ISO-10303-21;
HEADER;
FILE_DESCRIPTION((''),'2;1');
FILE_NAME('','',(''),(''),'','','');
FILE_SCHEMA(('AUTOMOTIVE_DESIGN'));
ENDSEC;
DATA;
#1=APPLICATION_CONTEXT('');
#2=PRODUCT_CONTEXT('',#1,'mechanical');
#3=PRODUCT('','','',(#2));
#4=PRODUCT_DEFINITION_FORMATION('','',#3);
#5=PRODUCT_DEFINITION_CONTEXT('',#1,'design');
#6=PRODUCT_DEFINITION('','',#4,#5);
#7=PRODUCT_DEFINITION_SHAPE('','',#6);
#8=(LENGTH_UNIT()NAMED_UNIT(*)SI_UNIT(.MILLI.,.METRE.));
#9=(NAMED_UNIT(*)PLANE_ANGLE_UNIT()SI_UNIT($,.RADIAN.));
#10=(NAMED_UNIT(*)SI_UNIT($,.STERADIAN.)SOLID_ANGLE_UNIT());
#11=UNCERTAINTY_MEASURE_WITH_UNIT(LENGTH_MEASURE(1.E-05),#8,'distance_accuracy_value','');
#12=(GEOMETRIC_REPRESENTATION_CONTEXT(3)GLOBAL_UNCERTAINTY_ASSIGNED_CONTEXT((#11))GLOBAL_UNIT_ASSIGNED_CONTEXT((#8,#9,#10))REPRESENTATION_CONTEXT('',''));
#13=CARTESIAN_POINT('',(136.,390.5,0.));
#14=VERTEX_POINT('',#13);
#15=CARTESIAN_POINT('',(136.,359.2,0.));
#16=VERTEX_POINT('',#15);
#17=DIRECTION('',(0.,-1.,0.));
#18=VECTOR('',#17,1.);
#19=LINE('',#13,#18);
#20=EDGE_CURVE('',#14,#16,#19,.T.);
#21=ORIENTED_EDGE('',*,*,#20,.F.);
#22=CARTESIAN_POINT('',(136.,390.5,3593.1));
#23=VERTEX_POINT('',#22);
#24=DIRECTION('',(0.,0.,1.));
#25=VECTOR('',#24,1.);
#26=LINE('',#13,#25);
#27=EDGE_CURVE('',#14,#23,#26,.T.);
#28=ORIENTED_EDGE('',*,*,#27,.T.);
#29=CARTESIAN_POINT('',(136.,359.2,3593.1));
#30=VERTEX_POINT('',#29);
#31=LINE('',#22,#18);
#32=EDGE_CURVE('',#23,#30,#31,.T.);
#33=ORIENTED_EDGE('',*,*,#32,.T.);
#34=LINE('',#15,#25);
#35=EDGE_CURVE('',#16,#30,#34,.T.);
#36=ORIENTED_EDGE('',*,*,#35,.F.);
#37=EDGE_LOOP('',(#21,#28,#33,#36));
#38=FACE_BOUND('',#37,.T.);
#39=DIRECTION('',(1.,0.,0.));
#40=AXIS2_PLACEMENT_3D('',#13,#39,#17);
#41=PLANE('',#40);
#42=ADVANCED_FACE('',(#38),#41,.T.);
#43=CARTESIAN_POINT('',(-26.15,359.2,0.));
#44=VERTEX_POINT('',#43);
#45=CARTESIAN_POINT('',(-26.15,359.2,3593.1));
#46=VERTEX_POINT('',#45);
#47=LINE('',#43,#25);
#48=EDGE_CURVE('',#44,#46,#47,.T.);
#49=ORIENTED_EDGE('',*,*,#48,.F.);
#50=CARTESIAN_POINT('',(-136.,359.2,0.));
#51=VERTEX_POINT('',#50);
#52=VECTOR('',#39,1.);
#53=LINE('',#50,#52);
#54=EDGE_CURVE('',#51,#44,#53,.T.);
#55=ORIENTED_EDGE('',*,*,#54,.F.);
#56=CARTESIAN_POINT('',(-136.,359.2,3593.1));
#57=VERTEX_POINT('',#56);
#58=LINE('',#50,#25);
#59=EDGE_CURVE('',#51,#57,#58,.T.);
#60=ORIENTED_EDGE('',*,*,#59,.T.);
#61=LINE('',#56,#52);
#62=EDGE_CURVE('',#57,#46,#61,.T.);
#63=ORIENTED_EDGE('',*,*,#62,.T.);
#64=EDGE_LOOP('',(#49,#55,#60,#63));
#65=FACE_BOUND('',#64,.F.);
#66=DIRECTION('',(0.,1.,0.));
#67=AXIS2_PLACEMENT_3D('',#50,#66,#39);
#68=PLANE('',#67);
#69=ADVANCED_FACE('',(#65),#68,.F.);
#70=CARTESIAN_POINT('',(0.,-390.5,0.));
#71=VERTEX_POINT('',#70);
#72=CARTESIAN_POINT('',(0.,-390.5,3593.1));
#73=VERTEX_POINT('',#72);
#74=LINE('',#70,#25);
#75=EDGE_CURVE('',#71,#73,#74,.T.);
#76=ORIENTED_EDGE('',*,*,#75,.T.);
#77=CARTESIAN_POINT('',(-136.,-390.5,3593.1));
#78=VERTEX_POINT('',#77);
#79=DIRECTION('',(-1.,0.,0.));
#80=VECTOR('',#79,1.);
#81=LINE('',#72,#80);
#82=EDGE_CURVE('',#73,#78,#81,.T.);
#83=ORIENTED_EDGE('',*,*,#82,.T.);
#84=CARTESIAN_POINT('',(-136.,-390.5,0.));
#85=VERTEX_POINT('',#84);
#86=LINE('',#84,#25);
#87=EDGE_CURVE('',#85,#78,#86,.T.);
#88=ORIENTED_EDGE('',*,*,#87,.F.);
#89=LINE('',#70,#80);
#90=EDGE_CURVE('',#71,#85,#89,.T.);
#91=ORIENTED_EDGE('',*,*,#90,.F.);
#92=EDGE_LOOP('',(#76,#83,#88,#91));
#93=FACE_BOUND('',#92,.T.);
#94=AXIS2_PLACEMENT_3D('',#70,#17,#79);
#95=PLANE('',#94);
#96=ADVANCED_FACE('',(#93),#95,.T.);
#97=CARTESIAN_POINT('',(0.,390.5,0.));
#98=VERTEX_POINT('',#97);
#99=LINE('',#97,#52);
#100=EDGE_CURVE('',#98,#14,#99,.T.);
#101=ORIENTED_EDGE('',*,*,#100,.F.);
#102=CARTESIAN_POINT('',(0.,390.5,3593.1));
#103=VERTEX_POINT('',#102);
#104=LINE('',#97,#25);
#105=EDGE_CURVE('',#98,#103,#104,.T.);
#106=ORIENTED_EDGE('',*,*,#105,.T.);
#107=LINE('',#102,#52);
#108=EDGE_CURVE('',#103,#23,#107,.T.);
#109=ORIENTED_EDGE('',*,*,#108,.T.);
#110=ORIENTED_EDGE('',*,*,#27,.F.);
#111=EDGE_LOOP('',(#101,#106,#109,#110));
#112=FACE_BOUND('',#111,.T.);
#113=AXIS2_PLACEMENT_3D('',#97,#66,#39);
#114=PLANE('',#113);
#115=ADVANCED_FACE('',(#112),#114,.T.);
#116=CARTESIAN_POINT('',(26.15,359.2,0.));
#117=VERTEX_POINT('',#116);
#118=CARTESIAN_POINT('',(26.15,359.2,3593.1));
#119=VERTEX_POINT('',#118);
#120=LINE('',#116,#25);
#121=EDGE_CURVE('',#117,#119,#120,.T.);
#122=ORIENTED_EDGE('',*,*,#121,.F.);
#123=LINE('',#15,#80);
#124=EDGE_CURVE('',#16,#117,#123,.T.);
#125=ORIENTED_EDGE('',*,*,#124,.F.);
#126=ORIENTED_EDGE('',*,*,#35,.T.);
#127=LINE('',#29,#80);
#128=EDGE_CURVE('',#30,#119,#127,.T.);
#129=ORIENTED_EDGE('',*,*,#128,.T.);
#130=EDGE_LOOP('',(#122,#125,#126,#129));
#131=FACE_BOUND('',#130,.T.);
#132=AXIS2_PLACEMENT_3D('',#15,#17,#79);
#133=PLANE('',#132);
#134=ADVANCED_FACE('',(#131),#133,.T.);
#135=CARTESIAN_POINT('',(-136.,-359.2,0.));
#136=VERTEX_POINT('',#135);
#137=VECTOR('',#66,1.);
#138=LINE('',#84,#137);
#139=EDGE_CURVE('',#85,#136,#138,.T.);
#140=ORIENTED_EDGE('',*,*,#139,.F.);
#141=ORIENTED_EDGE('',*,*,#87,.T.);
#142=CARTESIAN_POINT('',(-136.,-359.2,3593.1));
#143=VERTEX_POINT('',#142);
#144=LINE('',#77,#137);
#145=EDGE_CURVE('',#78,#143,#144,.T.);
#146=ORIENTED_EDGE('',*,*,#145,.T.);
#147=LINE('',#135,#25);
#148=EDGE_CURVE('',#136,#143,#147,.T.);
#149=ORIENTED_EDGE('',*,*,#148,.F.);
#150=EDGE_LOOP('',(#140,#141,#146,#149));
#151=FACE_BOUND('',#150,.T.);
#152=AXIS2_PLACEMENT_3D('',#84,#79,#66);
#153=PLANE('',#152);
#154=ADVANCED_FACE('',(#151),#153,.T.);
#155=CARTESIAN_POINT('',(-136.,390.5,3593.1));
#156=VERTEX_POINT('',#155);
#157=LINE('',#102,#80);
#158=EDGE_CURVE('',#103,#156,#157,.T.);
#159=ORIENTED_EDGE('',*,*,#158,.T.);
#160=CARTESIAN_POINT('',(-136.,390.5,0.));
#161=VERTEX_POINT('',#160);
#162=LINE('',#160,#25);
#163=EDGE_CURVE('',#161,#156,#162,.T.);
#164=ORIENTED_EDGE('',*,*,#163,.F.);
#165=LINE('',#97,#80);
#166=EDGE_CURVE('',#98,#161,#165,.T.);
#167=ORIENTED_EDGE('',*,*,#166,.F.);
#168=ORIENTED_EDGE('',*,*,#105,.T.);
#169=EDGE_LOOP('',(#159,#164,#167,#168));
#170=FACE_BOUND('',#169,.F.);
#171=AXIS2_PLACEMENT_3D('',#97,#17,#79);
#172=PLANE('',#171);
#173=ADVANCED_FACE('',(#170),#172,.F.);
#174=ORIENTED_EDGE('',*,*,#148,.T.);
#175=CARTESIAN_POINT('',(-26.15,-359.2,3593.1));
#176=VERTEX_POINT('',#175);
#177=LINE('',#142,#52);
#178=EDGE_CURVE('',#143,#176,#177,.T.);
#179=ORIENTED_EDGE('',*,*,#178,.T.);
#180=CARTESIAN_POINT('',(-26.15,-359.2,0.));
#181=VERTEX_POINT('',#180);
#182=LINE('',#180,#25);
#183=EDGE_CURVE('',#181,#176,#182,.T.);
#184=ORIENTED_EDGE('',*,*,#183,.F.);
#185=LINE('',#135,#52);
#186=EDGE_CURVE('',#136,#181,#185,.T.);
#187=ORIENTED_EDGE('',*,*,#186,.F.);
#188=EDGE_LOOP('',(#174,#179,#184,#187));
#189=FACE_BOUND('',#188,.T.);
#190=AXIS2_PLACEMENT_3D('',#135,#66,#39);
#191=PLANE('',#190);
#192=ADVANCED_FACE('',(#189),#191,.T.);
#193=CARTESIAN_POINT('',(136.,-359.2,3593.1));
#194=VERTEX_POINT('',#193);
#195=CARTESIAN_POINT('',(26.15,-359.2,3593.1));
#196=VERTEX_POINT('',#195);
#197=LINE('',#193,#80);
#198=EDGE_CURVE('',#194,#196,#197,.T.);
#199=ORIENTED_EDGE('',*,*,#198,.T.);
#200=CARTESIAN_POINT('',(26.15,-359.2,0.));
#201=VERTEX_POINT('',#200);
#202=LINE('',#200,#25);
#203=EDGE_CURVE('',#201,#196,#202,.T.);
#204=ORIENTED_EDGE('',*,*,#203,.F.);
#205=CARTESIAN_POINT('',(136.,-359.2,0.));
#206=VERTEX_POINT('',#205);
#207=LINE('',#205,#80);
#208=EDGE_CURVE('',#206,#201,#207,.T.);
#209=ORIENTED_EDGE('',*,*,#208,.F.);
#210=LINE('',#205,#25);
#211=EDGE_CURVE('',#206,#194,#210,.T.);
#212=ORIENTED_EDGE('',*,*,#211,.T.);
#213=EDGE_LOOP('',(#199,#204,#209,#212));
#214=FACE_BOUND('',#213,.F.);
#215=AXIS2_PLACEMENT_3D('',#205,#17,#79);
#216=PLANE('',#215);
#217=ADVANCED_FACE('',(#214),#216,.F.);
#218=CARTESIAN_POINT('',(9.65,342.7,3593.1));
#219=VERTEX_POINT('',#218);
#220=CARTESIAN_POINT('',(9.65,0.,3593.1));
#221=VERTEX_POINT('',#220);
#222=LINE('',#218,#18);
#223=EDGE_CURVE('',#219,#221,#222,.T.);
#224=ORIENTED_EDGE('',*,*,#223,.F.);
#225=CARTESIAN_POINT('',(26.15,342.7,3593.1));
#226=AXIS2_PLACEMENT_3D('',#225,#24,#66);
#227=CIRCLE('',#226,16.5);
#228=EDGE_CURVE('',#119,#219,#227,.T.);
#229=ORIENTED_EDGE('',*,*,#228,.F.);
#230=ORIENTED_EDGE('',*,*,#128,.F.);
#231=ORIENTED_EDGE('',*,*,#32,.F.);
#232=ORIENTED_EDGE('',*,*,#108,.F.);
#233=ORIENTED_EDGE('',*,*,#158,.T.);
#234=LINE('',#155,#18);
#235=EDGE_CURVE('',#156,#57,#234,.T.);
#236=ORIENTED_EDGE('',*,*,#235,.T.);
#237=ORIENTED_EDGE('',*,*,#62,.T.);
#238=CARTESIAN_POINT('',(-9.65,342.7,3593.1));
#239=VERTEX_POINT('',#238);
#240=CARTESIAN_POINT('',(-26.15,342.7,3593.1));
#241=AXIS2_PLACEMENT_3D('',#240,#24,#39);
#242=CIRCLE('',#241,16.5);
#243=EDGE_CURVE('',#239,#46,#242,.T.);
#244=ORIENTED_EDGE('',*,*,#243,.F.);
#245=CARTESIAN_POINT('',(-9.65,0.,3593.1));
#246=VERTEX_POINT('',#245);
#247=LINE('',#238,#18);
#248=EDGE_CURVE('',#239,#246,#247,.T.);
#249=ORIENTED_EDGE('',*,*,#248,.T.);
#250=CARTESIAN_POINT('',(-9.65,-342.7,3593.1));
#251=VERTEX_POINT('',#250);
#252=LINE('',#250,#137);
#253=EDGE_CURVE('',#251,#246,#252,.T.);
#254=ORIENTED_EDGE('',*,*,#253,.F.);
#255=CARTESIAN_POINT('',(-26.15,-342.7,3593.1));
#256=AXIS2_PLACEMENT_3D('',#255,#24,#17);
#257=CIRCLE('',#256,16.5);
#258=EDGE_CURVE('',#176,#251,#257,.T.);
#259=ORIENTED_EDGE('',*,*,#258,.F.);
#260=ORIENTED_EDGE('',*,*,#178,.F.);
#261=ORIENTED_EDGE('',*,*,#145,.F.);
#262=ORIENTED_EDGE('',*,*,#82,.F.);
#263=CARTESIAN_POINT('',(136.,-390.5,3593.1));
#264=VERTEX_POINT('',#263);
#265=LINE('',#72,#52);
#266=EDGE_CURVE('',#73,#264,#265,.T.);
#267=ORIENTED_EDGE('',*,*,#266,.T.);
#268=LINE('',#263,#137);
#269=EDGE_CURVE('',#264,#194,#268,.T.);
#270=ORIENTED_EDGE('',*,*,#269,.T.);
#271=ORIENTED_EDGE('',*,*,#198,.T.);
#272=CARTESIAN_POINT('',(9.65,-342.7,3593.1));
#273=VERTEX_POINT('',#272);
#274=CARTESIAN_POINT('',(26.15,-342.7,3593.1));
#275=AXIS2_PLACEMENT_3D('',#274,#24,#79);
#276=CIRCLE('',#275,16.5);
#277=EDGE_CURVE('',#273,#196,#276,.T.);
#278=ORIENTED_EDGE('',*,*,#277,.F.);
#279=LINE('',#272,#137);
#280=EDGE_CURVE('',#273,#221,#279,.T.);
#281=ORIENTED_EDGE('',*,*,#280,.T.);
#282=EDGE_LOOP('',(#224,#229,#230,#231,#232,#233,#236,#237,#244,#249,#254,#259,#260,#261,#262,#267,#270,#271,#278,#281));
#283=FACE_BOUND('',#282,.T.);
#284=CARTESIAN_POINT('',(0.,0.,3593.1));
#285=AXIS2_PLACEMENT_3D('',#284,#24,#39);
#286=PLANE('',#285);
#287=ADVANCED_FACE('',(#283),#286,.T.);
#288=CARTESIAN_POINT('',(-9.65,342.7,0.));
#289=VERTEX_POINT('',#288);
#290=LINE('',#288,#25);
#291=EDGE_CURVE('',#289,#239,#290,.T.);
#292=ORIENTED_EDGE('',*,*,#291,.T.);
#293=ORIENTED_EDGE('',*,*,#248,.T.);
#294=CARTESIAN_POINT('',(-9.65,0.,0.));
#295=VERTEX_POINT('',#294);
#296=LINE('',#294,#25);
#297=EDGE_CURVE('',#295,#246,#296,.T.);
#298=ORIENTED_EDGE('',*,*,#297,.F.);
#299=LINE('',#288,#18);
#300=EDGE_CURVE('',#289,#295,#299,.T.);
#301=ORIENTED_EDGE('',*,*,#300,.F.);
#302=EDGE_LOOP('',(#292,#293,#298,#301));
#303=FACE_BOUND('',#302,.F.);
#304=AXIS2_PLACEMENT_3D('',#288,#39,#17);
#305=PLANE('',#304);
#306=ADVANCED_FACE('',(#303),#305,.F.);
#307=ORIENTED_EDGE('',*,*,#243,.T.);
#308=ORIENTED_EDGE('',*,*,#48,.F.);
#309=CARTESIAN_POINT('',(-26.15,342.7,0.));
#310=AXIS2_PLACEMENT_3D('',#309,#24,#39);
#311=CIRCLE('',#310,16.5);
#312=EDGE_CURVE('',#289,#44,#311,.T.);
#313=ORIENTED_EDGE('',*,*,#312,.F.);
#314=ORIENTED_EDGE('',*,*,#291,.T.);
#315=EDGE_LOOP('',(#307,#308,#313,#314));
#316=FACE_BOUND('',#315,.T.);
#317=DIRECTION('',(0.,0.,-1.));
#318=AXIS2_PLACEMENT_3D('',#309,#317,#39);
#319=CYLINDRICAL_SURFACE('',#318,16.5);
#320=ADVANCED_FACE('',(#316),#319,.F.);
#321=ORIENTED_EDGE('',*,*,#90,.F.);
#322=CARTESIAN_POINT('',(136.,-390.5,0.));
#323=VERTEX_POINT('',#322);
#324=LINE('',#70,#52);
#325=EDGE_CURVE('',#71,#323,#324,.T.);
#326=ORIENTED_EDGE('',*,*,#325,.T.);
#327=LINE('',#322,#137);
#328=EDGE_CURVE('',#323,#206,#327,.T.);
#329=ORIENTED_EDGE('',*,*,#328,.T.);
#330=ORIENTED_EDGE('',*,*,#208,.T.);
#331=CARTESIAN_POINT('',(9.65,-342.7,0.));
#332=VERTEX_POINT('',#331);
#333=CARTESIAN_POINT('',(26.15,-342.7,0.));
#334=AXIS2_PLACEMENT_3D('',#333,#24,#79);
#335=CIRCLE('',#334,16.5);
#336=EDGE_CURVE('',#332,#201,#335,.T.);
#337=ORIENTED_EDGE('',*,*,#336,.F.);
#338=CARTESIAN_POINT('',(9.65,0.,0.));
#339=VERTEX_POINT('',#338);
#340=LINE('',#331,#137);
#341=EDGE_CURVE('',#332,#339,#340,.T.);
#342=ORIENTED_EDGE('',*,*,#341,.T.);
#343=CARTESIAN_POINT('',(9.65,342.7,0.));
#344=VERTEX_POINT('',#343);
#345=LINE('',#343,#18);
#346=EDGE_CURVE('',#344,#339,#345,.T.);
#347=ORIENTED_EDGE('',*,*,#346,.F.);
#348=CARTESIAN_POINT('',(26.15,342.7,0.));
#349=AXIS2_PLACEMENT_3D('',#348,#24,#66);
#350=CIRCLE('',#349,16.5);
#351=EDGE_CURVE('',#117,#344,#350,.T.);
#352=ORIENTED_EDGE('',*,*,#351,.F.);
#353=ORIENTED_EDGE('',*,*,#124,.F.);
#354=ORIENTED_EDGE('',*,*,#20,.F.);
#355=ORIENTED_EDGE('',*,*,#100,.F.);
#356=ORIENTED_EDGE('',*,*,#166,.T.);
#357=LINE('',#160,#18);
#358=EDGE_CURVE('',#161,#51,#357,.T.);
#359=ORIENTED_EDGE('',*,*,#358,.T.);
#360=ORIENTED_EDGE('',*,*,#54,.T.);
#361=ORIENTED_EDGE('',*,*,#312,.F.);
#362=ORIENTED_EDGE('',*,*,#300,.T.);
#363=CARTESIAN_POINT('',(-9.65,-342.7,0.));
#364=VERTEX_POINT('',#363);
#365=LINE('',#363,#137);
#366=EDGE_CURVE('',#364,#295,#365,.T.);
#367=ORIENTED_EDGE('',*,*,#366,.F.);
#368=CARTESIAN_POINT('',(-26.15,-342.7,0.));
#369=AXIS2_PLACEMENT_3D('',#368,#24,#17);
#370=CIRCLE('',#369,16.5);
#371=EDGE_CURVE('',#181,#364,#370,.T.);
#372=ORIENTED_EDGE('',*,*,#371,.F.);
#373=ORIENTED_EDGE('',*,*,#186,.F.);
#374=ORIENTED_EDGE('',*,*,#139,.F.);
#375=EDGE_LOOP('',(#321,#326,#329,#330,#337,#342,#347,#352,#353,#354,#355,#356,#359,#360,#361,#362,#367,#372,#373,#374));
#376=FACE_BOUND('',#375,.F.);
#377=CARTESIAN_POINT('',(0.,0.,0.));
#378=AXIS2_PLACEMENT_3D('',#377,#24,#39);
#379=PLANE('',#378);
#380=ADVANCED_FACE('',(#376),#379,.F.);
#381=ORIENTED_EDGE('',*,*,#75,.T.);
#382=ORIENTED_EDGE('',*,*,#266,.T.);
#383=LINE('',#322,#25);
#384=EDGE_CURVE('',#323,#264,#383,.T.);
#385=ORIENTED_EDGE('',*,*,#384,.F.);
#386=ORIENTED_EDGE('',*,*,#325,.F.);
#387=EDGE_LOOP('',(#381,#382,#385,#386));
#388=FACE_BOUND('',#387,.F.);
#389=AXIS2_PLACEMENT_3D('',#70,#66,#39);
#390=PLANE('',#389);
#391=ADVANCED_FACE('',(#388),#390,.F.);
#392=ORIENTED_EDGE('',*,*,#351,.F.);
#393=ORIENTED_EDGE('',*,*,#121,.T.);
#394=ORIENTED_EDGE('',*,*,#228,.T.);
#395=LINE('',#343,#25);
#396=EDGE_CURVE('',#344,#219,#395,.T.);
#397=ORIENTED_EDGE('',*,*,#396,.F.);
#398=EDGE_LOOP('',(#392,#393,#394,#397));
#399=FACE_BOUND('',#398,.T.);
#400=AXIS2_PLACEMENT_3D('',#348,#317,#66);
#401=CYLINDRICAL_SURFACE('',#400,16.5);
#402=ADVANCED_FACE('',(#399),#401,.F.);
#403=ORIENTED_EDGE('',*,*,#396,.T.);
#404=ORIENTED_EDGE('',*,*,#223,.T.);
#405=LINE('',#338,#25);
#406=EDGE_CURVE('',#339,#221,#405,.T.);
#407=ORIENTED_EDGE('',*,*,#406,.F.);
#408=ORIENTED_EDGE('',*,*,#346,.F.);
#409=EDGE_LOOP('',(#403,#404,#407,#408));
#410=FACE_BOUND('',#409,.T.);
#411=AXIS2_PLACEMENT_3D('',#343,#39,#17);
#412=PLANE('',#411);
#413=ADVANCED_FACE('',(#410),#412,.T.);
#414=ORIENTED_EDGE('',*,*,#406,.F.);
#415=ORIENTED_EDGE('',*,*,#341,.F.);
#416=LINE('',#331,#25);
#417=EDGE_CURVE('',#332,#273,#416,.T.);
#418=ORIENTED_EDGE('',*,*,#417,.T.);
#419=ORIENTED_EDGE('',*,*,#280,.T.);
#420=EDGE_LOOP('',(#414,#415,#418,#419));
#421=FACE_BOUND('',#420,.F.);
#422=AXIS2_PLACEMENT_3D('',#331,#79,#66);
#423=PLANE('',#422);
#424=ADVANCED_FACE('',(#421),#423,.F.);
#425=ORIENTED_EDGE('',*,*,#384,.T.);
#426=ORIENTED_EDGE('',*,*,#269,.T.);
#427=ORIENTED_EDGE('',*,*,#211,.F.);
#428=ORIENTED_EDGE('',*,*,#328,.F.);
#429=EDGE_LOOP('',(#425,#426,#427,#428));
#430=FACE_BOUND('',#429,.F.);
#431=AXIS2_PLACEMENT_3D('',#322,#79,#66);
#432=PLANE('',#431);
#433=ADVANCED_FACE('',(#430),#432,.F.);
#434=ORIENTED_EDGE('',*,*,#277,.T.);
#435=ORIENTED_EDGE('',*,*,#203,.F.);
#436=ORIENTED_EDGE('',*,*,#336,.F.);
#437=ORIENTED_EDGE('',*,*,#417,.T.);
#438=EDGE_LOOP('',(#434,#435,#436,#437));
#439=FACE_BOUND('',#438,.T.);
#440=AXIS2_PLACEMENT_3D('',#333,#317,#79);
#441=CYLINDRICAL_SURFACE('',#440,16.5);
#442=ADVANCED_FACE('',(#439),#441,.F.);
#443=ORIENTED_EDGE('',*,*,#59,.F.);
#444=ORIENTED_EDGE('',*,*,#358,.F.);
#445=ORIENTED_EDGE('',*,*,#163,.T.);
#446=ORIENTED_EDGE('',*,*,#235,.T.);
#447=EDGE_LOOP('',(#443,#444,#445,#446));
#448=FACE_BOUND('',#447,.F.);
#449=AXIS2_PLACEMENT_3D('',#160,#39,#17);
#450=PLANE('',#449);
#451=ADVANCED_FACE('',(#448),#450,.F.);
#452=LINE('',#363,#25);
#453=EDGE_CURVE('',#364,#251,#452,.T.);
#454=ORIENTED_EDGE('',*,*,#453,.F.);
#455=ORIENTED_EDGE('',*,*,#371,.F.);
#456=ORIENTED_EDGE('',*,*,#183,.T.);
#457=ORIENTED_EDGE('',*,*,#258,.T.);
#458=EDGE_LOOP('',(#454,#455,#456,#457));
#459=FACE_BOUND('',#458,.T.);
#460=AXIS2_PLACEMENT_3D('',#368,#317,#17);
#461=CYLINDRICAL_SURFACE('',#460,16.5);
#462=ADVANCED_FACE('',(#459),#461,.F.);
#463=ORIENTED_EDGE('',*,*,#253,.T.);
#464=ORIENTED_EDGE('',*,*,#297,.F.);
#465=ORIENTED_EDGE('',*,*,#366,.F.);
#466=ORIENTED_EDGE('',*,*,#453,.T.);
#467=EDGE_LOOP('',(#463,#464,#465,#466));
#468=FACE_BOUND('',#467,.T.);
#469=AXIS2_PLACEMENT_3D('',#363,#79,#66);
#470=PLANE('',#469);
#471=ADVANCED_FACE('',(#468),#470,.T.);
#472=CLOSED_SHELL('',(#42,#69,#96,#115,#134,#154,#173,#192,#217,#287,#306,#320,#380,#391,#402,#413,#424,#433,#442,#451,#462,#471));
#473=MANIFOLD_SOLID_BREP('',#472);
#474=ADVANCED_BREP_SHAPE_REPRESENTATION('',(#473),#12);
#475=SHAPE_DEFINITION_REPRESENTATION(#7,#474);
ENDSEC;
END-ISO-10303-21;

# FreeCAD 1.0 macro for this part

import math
import FreeCAD as App
import Part
import Sketcher

V = App.Vector
Q = App.Units.Quantity

doc = App.newDocument("Part")
body = doc.addObject("PartDesign::Body", "Body")

sketch1 = body.newObject("Sketcher::SketchObject", "Sketch")
sketch1.AttachmentSupport = (doc.getObject("XY_Plane"), [""])
sketch1.MapMode = "FlatFace"
sketch1.addGeometry(Part.LineSegment(V(-136, -359.2, 0), V(-136, -390.5, 0)), False)
sketch1.addGeometry(Part.LineSegment(V(-136, -390.5, 0), V(136, -390.5, 0)), False)
sketch1.addGeometry(Part.LineSegment(V(136, -390.5, 0), V(136, -359.2, 0)), False)
sketch1.addGeometry(Part.LineSegment(V(136, -359.2, 0), V(26.15, -359.2, 0)), False)
sketch1.addGeometry(Part.ArcOfCircle(Part.Circle(V(26.15, -342.7, 0), V(0, 0, 1), 16.5), math.radians(180), math.radians(270)), False)
sketch1.addGeometry(Part.LineSegment(V(9.65, -342.7, 0), V(9.65, 342.7, 0)), False)
sketch1.addGeometry(Part.ArcOfCircle(Part.Circle(V(26.15, 342.7, 0), V(0, 0, 1), 16.5), math.radians(90), math.radians(180)), False)
sketch1.addGeometry(Part.LineSegment(V(26.15, 359.2, 0), V(136, 359.2, 0)), False)
sketch1.addGeometry(Part.LineSegment(V(136, 359.2, 0), V(136, 390.5, 0)), False)
sketch1.addGeometry(Part.LineSegment(V(136, 390.5, 0), V(-136, 390.5, 0)), False)
sketch1.addGeometry(Part.LineSegment(V(-136, 390.5, 0), V(-136, 359.2, 0)), False)
sketch1.addGeometry(Part.LineSegment(V(-136, 359.2, 0), V(-26.15, 359.2, 0)), False)
sketch1.addGeometry(Part.ArcOfCircle(Part.Circle(V(-26.15, 342.7, 0), V(0, 0, 1), 16.5), math.radians(0), math.radians(90)), False)
sketch1.addGeometry(Part.LineSegment(V(-9.65, 342.7, 0), V(-9.65, -342.7, 0)), False)
sketch1.addGeometry(Part.ArcOfCircle(Part.Circle(V(-26.15, -342.7, 0), V(0, 0, 1), 16.5), math.radians(-90), math.radians(0)), False)
sketch1.addGeometry(Part.LineSegment(V(-26.15, -359.2, 0), V(-136, -359.2, 0)), False)
sketch1.addConstraint(Sketcher.Constraint("Coincident", 0, 2, 1, 1))
sketch1.addConstraint(Sketcher.Constraint("Coincident", 1, 2, 2, 1))
sketch1.addConstraint(Sketcher.Constraint("Coincident", 2, 2, 3, 1))
sketch1.addConstraint(Sketcher.Constraint("Tangent", 3, 2, 4, 2))
sketch1.addConstraint(Sketcher.Constraint("Tangent", 4, 1, 5, 1))
sketch1.addConstraint(Sketcher.Constraint("Tangent", 5, 2, 6, 2))
sketch1.addConstraint(Sketcher.Constraint("Tangent", 6, 1, 7, 1))
sketch1.addConstraint(Sketcher.Constraint("Coincident", 7, 2, 8, 1))
sketch1.addConstraint(Sketcher.Constraint("Coincident", 8, 2, 9, 1))
sketch1.addConstraint(Sketcher.Constraint("Coincident", 9, 2, 10, 1))
sketch1.addConstraint(Sketcher.Constraint("Coincident", 10, 2, 11, 1))
sketch1.addConstraint(Sketcher.Constraint("Tangent", 11, 2, 12, 2))
sketch1.addConstraint(Sketcher.Constraint("Tangent", 12, 1, 13, 1))
sketch1.addConstraint(Sketcher.Constraint("Tangent", 13, 2, 14, 2))
sketch1.addConstraint(Sketcher.Constraint("Tangent", 14, 1, 15, 1))
sketch1.addConstraint(Sketcher.Constraint("Coincident", 15, 2, 0, 1))
sketch1.addConstraint(Sketcher.Constraint("Vertical", 0))
sketch1.addConstraint(Sketcher.Constraint("Horizontal", 1))
sketch1.addConstraint(Sketcher.Constraint("Vertical", 2))
sketch1.addConstraint(Sketcher.Constraint("Horizontal", 3))
sketch1.addConstraint(Sketcher.Constraint("Vertical", 5))
sketch1.addConstraint(Sketcher.Constraint("Horizontal", 7))
sketch1.addConstraint(Sketcher.Constraint("Vertical", 8))
sketch1.addConstraint(Sketcher.Constraint("Horizontal", 9))
sketch1.addConstraint(Sketcher.Constraint("Vertical", 10))
sketch1.addConstraint(Sketcher.Constraint("Horizontal", 11))
sketch1.addConstraint(Sketcher.Constraint("Vertical", 13))
sketch1.addConstraint(Sketcher.Constraint("Horizontal", 15))
sketch1.addConstraint(Sketcher.Constraint("Equal", 4, 6))
sketch1.addConstraint(Sketcher.Constraint("Equal", 6, 12))
sketch1.addConstraint(Sketcher.Constraint("Equal", 12, 14))
sketch1.addConstraint(Sketcher.Constraint("Symmetric", 4, 3, 12, 3, -1, 1))
sketch1.addConstraint(Sketcher.Constraint("Symmetric", 0, 2, 8, 2, -1, 1))
sketch1.addConstraint(Sketcher.Constraint("Symmetric", 7, 2, 10, 2, -2))
sketch1.addConstraint(Sketcher.Constraint("Symmetric", 2, 2, 15, 2, -2))
sketch1.addConstraint(Sketcher.Constraint("Radius", 4, Q("16.5 mm")))
sketch1.addConstraint(Sketcher.Constraint("DistanceY", 0, 2, 0, 1, Q("31.3 mm")))
sketch1.addConstraint(Sketcher.Constraint("DistanceX", 0, 2, -1, 1, Q("136 mm")))
sketch1.addConstraint(Sketcher.Constraint("DistanceY", 0, 2, -1, 1, Q("390.5 mm")))
sketch1.addConstraint(Sketcher.Constraint("DistanceX", -1, 1, 4, 1, Q("9.65 mm")))
pad1 = body.newObject("PartDesign::Pad", "Pad")
pad1.Profile = sketch1
pad1.Length = 3593.1

doc.recompute()
